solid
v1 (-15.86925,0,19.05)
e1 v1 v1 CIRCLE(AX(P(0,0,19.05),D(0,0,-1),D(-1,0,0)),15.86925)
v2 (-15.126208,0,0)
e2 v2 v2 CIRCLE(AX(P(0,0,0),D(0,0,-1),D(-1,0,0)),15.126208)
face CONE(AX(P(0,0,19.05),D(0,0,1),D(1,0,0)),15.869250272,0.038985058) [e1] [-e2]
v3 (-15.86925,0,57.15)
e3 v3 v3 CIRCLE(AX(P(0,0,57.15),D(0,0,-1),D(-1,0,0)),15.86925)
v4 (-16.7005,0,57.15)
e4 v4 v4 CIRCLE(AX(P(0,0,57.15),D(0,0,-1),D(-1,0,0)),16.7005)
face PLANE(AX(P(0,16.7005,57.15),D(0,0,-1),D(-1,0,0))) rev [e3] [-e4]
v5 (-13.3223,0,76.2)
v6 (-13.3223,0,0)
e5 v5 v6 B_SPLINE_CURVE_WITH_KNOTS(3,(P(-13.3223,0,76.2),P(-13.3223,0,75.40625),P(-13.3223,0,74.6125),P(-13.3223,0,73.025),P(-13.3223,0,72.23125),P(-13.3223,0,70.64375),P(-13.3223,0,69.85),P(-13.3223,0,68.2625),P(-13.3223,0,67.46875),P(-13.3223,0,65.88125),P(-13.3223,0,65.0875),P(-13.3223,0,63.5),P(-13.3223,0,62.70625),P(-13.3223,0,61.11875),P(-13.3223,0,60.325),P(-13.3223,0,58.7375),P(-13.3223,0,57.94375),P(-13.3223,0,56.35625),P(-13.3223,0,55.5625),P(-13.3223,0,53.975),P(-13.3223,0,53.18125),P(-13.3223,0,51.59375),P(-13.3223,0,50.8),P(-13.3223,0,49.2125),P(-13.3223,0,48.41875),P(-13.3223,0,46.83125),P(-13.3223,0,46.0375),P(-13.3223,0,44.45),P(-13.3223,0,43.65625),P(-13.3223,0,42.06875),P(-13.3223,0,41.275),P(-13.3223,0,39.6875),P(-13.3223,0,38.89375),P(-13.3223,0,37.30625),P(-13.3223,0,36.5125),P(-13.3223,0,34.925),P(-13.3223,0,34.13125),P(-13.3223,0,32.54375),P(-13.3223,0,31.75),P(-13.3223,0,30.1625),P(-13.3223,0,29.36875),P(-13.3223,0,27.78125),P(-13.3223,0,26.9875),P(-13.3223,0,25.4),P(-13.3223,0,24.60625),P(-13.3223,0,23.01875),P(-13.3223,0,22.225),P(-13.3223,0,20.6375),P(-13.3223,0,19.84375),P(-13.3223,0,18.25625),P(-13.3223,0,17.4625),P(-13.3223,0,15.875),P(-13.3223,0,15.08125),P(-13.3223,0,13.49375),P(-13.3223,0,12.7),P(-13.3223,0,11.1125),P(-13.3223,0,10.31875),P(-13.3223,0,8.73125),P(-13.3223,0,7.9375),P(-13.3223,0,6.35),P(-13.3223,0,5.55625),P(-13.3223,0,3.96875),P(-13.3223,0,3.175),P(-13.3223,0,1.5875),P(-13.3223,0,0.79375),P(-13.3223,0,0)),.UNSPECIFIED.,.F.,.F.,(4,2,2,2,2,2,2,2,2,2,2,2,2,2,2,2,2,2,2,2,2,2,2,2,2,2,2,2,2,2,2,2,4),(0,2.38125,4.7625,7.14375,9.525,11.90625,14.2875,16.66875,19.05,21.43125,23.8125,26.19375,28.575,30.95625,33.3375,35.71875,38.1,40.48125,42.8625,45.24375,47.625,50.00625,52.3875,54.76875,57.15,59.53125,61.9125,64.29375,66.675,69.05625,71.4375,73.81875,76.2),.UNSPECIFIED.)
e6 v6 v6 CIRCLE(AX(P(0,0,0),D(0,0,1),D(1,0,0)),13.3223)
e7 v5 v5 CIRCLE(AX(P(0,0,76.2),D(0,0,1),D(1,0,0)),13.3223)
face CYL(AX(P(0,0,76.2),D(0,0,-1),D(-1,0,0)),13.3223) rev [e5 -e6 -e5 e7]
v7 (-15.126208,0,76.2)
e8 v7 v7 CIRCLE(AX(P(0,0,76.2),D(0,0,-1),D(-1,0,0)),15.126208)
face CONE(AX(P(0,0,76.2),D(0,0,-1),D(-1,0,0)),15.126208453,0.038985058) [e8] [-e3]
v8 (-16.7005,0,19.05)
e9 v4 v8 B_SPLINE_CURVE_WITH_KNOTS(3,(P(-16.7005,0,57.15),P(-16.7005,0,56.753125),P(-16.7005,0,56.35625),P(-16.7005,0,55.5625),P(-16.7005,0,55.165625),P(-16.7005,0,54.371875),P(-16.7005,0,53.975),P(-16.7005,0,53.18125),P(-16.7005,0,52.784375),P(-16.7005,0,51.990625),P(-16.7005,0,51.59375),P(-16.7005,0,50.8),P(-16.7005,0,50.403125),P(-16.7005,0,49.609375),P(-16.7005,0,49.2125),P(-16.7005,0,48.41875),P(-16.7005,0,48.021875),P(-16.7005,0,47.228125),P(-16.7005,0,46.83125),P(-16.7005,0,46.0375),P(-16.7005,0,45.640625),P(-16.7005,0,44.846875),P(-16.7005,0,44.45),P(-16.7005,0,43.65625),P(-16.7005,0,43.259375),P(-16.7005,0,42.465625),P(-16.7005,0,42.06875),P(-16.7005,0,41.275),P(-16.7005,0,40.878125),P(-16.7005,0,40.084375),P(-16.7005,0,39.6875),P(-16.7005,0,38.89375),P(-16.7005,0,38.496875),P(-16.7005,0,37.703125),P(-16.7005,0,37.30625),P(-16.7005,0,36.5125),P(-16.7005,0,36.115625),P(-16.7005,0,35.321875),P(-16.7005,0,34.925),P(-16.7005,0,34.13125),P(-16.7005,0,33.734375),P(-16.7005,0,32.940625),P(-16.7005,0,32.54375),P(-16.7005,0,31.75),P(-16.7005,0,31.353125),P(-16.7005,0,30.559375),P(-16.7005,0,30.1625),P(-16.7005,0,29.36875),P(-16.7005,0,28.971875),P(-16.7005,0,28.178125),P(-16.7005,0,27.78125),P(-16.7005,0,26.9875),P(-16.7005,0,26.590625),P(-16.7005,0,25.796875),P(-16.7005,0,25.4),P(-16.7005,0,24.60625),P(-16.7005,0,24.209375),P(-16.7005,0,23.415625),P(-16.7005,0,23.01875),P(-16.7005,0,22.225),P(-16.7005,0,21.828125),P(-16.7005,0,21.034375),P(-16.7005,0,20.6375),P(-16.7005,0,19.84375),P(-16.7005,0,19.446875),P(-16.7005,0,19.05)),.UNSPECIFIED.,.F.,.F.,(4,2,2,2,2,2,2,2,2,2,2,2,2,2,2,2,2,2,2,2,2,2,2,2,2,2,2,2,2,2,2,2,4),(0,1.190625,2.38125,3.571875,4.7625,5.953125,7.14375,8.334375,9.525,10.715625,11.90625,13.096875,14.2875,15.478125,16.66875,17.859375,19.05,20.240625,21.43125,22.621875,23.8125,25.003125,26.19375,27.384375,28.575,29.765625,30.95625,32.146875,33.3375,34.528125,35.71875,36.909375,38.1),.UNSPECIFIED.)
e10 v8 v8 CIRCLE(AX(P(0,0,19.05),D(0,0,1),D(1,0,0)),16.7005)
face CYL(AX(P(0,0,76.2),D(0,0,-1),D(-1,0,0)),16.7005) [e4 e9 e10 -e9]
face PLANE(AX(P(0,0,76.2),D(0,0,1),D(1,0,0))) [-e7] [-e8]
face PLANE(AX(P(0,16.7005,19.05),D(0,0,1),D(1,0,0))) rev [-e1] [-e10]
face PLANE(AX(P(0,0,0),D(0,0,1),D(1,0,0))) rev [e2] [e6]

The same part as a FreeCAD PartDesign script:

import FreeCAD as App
import Part
import Sketcher

V = App.Vector
Q = App.Units.Quantity

doc = App.newDocument("Part")
params = doc.addObject("Spreadsheet::Sheet", "Params")
for row, (alias, value) in enumerate([
    ("sketch1_diameter", "1.315 in"),
    ("sketch1_diameter2", "1.049 in"),
    ("pad1_length", "3 in"),
    ("sketch2_height", "0.75 in"),
    ("groove_angle", "360 deg"),
], start=1):
    params.set(f"A{row}", alias)
    params.set(f"B{row}", "=" + value)
    params.setAlias(f"B{row}", alias)

body = doc.addObject("PartDesign::Body", "Body")

# Sketch on XY plane
sketch1 = doc.addObject("Sketcher::SketchObject", "Sketch")
body.addObject(sketch1)
sketch1.AttachmentSupport = (doc.XY_Plane, [""])
sketch1.MapMode = "FlatFace"
sketch1.addGeometry(Part.Circle(V(0, 0, 0), V(0, 0, 1), 17), False)
sketch1.addGeometry(Part.Circle(V(0, 0, 0), V(0, 0, 1), 13), False)
sketch1.addConstraint(Sketcher.Constraint("Coincident", 0, 3, -1, 1))
sketch1.addConstraint(Sketcher.Constraint("Coincident", 1, 3, -1, 1))
sketch1.addConstraint(Sketcher.Constraint("Diameter", 0, Q("1.315 in")))
sketch1.addConstraint(Sketcher.Constraint("Diameter", 1, Q("1.049 in")))
sketch1.setExpression("Constraints[2]", "Params.sketch1_diameter")
sketch1.setExpression("Constraints[3]", "Params.sketch1_diameter2")
pad1 = doc.addObject("PartDesign::Pad", "Pad")
body.addObject(pad1)
pad1.Profile = sketch1
pad1.setExpression("Length", "Params.pad1_length")

# Sketch on YZ plane
sketch2 = doc.addObject("Sketcher::SketchObject", "Sketch001")
body.addObject(sketch2)
sketch2.AttachmentSupport = (doc.YZ_Plane, [""])
sketch2.MapMode = "FlatFace"
sketch2.addGeometry(Part.LineSegment(V(22, 0, 0), V(22, 19, 0)), False)
sketch2.addGeometry(Part.LineSegment(V(22, 19, 0), V(16, 19, 0)), False)
sketch2.addGeometry(Part.LineSegment(V(16, 19, 0), V(15, 0, 0)), False)
sketch2.addGeometry(Part.LineSegment(V(15, 0, 0), V(22, 0, 0)), False)
sketch2.addGeometry(Part.LineSegment(V(22, 76, 0), V(15, 76, 0)), False)
sketch2.addGeometry(Part.LineSegment(V(15, 76, 0), V(16, 57, 0)), False)
sketch2.addGeometry(Part.LineSegment(V(16, 57, 0), V(22, 57, 0)), False)
sketch2.addGeometry(Part.LineSegment(V(22, 57, 0), V(22, 76, 0)), False)
sketch2.addConstraint(Sketcher.Constraint("Coincident", 0, 2, 1, 1))
sketch2.addConstraint(Sketcher.Constraint("Coincident", 1, 2, 2, 1))
sketch2.addConstraint(Sketcher.Constraint("Coincident", 2, 2, 3, 1))
sketch2.addConstraint(Sketcher.Constraint("Coincident", 3, 2, 0, 1))
sketch2.addConstraint(Sketcher.Constraint("Coincident", 4, 2, 5, 1))
sketch2.addConstraint(Sketcher.Constraint("Coincident", 5, 2, 6, 1))
sketch2.addConstraint(Sketcher.Constraint("Coincident", 6, 2, 7, 1))
sketch2.addConstraint(Sketcher.Constraint("Coincident", 7, 2, 4, 1))
sketch2.addConstraint(Sketcher.Constraint("Vertical", 0))
sketch2.addConstraint(Sketcher.Constraint("Horizontal", 1))
sketch2.addConstraint(Sketcher.Constraint("Horizontal", 3))
sketch2.addConstraint(Sketcher.Constraint("Horizontal", 4))
sketch2.addConstraint(Sketcher.Constraint("Horizontal", 6))
sketch2.addConstraint(Sketcher.Constraint("Vertical", 7))
sketch2.addConstraint(Sketcher.Constraint("PointOnObject", 2, 2, -1))
sketch2.addConstraint(Sketcher.Constraint("Vertical", 2, 2, 4, 2))
sketch2.addConstraint(Sketcher.Constraint("Vertical", 1, 2, 5, 2))
sketch2.addConstraint(Sketcher.Constraint("Vertical", 3, 2, 6, 2))
sketch2.addConstraint(Sketcher.Constraint("Equal", 0, 7))
sketch2.addConstraint(Sketcher.Constraint("DistanceY", -1, 1, 4, 2, Q("3 in")))
sketch2.addConstraint(Sketcher.Constraint("DistanceY", 0, 1, 0, 2, Q("0.75 in")))
sketch2.addConstraint(Sketcher.Constraint("DistanceX", 1, 2, 1, 1, Q("5.944335 mm")))
sketch2.addConstraint(Sketcher.Constraint("DistanceX", 3, 1, 3, 2, Q("6.687376 mm")))
sketch2.addConstraint(Sketcher.Constraint("DistanceX", -1, 1, 1, 2, Q("15.86925 mm")))
sketch2.setExpression("Constraints[20]", "Params.sketch2_height")
groove = doc.addObject("PartDesign::Groove", "Groove")
body.addObject(groove)
groove.Profile = sketch2
groove.ReferenceAxis = (sketch2, ["V_Axis"])
groove.setExpression("Angle", "Params.groove_angle")

doc.recompute()
